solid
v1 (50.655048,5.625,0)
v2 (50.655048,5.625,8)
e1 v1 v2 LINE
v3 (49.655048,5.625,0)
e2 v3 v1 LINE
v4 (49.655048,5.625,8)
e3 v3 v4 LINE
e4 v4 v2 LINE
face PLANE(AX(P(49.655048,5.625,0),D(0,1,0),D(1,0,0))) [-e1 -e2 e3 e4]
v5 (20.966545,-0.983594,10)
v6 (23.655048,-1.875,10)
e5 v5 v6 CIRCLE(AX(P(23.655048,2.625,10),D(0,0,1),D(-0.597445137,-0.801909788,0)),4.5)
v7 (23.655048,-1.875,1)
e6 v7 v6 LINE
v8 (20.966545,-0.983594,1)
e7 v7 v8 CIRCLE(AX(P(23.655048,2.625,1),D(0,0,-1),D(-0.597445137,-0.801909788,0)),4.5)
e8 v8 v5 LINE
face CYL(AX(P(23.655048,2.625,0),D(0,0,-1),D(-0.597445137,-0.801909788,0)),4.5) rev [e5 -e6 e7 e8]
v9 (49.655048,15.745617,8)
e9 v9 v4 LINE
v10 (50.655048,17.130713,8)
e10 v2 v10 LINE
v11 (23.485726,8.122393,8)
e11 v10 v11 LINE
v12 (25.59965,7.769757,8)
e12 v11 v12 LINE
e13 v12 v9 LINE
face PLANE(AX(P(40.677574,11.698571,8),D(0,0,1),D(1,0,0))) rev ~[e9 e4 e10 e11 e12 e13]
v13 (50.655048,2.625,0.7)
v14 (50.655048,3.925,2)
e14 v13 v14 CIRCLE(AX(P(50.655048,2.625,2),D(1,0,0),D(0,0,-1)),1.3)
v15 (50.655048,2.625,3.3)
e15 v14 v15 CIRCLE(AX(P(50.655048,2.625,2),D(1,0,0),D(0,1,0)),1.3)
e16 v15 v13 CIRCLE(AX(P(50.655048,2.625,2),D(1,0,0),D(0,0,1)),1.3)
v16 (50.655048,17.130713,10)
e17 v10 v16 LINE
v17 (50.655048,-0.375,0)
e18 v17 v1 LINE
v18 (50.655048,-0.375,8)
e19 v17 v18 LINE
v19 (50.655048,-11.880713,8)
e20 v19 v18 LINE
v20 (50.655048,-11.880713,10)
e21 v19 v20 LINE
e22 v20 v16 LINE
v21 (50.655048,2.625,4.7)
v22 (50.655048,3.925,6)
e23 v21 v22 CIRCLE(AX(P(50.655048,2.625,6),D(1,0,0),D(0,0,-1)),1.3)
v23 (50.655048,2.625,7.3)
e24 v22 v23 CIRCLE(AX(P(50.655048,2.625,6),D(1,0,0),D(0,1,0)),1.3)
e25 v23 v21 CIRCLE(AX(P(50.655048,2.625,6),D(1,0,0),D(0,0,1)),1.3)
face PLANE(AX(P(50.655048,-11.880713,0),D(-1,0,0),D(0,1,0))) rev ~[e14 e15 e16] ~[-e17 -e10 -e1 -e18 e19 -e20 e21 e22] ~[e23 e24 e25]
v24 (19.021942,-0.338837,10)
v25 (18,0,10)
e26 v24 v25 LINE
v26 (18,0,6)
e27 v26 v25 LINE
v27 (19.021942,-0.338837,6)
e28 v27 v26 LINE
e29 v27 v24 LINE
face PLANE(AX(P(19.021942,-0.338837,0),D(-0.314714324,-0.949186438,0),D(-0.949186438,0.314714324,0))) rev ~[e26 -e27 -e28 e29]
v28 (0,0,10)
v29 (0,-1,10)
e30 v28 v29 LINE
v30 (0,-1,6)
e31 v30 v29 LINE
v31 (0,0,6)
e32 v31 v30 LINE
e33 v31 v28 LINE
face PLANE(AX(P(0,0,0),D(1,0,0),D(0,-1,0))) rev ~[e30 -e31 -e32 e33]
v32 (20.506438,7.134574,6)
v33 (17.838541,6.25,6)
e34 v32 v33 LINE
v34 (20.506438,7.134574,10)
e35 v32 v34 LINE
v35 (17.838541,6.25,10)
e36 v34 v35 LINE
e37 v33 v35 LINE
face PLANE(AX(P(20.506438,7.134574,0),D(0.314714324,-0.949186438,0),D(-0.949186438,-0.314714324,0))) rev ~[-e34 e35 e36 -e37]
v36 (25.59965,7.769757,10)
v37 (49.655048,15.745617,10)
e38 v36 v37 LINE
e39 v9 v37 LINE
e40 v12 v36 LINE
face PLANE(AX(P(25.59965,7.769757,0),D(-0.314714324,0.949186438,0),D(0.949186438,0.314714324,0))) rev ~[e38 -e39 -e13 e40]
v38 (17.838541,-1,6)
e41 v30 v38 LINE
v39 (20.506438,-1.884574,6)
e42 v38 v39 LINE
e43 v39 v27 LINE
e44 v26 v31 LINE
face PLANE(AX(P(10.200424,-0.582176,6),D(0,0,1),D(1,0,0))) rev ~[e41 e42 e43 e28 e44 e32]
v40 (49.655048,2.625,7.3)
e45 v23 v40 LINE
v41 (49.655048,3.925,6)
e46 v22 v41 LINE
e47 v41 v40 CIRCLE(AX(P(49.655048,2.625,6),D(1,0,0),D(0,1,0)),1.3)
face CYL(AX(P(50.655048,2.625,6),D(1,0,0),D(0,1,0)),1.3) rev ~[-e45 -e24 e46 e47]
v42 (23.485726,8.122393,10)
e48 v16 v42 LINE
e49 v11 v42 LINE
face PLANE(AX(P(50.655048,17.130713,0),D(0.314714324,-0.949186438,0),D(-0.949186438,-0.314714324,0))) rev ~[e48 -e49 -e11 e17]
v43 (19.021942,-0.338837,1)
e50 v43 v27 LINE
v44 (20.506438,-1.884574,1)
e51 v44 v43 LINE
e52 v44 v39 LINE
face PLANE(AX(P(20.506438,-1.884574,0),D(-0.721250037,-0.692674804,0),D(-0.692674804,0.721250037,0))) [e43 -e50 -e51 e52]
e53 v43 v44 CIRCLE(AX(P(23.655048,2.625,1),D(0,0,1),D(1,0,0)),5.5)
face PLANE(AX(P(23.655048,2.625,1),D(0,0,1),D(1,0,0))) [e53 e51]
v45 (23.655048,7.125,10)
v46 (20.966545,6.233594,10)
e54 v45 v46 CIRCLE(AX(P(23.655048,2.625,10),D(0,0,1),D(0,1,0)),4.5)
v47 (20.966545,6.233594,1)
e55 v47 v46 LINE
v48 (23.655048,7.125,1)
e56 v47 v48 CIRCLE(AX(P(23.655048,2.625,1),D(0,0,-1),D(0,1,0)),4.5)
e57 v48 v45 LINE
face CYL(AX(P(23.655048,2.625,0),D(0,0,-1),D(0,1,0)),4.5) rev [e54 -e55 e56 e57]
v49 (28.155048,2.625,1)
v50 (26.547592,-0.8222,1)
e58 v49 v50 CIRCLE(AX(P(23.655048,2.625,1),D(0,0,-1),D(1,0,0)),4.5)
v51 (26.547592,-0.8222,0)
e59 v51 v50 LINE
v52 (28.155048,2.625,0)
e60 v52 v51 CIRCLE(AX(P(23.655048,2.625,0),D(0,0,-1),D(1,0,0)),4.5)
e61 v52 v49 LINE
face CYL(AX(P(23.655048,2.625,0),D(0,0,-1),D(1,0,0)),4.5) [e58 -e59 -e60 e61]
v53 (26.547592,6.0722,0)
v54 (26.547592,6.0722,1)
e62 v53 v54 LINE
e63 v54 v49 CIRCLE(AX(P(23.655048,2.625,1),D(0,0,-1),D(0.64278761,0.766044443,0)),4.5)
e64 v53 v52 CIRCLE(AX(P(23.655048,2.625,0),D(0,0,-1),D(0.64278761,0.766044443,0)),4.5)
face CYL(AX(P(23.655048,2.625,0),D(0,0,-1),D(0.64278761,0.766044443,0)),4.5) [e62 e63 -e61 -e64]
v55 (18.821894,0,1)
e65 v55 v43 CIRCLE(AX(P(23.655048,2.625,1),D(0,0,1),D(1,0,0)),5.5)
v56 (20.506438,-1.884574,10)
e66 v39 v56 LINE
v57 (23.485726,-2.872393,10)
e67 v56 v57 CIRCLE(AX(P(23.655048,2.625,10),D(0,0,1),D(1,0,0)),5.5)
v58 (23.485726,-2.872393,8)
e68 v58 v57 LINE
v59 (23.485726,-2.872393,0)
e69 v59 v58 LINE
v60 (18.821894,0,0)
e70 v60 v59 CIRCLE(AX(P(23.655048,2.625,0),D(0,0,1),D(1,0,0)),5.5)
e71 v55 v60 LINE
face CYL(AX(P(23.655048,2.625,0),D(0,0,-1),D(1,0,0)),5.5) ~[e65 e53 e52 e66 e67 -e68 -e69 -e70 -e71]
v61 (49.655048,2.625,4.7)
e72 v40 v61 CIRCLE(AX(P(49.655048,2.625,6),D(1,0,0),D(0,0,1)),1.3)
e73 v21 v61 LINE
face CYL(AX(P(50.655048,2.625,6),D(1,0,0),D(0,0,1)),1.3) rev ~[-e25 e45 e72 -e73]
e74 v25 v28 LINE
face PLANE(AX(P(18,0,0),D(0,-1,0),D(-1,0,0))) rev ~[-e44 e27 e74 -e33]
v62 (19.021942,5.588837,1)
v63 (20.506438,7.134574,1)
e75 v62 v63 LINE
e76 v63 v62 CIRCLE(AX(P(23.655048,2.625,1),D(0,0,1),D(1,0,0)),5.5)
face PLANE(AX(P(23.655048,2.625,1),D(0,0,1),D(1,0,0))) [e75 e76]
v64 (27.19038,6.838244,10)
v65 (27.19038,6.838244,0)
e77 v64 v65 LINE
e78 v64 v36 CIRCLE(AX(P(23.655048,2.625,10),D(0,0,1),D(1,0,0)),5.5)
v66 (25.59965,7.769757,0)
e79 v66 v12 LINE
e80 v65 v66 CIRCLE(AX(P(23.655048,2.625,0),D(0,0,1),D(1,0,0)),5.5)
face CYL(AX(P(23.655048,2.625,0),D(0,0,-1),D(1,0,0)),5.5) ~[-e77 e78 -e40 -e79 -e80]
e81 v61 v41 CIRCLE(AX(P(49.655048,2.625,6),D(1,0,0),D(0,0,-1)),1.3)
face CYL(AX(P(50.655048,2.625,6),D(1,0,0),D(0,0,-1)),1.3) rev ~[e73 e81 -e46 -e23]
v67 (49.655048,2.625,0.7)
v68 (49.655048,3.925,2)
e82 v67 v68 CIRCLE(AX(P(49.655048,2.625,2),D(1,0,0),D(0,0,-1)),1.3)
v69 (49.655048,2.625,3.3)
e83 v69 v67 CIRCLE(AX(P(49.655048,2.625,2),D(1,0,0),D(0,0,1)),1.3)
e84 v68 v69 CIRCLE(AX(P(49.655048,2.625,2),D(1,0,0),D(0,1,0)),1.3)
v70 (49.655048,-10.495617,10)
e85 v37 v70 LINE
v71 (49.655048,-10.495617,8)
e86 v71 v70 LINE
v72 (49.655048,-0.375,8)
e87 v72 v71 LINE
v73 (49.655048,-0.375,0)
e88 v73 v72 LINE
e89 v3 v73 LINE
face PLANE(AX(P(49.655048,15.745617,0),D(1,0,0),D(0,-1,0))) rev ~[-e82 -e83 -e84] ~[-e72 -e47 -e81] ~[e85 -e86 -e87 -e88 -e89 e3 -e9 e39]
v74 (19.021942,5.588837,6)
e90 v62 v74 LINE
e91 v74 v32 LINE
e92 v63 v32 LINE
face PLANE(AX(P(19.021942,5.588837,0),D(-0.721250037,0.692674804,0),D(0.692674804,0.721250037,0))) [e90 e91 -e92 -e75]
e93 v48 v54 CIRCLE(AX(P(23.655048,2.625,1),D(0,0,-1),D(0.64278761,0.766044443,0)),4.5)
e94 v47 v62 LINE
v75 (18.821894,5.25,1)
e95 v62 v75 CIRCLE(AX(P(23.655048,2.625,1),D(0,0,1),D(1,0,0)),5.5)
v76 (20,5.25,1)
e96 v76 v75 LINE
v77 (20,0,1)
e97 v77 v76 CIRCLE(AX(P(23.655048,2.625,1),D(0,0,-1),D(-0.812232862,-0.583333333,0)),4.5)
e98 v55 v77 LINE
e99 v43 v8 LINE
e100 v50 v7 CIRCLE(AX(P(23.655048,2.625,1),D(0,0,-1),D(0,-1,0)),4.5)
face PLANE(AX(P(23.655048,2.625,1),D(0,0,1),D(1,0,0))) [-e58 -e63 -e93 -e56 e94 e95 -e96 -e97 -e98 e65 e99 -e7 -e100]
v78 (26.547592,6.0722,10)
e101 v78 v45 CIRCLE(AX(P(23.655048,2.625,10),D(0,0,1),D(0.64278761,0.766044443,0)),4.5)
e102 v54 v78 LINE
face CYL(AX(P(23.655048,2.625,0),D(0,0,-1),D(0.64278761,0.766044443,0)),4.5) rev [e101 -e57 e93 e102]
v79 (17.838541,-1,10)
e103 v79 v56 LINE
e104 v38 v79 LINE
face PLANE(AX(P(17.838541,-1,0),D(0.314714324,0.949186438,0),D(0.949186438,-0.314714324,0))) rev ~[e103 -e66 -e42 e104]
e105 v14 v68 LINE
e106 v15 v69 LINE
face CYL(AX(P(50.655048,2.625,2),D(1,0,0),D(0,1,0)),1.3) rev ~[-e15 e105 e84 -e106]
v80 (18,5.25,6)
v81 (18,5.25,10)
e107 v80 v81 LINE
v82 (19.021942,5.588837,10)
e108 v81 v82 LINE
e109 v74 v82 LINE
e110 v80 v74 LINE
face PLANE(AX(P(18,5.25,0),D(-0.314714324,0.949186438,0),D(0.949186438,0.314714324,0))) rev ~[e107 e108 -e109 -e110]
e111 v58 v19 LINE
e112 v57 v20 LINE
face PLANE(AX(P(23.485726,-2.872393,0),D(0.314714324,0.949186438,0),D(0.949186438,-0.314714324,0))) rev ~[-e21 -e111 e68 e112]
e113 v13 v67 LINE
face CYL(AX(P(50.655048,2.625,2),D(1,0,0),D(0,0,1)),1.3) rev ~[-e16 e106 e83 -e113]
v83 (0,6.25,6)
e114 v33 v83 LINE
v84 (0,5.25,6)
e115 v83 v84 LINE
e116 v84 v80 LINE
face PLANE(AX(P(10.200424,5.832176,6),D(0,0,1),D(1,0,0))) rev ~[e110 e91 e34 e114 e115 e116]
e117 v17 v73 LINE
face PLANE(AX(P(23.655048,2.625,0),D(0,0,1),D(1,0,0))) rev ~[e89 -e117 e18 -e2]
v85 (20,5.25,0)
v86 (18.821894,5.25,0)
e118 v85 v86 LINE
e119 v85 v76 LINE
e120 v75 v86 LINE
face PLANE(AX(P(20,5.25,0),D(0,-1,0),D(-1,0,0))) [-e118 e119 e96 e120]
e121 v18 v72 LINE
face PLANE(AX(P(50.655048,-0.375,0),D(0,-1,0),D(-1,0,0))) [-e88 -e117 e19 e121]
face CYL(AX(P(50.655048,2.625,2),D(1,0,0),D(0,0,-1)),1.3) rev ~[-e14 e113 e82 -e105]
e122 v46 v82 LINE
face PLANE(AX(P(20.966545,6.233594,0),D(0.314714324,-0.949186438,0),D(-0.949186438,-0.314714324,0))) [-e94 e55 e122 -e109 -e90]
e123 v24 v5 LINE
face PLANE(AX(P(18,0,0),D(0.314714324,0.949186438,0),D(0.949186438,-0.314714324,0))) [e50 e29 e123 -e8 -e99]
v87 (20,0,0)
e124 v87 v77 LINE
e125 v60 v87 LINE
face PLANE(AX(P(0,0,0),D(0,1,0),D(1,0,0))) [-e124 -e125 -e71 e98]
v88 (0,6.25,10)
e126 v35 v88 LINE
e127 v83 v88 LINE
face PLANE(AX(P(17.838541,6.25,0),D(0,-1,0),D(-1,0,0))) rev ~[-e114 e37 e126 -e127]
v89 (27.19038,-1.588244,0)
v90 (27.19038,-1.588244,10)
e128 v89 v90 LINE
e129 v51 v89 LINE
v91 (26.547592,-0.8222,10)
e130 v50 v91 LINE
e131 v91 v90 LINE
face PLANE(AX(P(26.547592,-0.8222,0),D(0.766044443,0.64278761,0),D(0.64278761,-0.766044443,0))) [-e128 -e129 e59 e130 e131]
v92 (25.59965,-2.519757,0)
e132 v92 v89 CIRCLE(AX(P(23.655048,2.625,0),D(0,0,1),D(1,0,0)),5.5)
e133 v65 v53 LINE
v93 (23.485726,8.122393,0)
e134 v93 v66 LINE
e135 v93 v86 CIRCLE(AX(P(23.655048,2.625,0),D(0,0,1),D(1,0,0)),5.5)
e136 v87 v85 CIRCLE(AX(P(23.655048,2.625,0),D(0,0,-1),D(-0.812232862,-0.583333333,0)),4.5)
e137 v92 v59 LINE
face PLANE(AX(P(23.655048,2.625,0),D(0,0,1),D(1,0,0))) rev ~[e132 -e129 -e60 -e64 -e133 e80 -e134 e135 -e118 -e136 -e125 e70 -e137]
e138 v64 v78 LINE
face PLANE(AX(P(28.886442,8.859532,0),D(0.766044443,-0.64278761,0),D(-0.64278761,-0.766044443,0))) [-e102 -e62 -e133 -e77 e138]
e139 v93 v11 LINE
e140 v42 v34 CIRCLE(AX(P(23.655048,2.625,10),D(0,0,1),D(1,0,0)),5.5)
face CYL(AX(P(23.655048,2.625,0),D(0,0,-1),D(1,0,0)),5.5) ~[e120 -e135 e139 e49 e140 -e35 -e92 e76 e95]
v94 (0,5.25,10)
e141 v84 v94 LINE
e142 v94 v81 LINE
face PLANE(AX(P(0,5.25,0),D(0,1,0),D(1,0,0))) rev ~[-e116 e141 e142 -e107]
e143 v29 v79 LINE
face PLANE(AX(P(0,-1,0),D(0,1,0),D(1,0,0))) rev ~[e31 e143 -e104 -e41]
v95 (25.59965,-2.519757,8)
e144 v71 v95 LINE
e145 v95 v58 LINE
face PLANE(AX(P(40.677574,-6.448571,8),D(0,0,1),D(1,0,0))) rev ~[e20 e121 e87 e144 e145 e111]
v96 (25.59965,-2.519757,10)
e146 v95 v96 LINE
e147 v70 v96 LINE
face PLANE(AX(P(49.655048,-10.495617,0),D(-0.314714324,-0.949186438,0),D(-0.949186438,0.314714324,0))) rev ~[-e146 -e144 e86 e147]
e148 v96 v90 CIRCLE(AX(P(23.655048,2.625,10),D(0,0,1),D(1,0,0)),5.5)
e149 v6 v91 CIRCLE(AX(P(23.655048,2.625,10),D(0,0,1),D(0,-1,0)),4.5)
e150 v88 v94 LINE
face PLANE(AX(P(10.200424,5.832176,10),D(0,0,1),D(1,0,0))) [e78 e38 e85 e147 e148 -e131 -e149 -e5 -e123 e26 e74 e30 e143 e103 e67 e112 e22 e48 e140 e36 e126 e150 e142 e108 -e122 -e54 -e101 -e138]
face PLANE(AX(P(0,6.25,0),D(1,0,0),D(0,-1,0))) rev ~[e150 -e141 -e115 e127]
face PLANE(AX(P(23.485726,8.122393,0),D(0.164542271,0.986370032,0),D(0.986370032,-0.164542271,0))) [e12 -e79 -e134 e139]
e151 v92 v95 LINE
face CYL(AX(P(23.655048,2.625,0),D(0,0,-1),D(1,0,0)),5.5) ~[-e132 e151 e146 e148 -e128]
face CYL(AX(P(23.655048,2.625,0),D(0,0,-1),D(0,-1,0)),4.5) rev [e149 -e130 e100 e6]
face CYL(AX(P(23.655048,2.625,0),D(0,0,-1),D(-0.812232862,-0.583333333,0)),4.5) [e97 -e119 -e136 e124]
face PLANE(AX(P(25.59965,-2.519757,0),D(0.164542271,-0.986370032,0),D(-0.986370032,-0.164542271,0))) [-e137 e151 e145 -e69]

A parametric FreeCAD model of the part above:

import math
import FreeCAD as App
import Part
import Sketcher
Q = App.Units.Quantity

doc = App.newDocument("Part")
body = doc.addObject("PartDesign::Body", "Body")
body.AllowCompound = True

sketch1 = doc.addObject("Sketcher::SketchObject", "Sketch")
body.addObject(sketch1)
sketch1.AttachmentSupport = (doc.XY_Plane, [""])
sketch1.MapMode = "FlatFace"
sketch1.addGeometry(Part.Circle(App.Vector(24, 3, 0), App.Vector(0, 0, 1), 6), False)
sketch1.addConstraint(Sketcher.Constraint("Diameter", 0, Q("11 mm")))
sketch1.addConstraint(Sketcher.Constraint("DistanceY", -1, 1, 0, 3, Q("2.625 mm")))
sketch1.addConstraint(Sketcher.Constraint("DistanceX", -1, 1, 0, 3, Q("23.655048 mm")))
pad1 = doc.addObject("PartDesign::Pad", "Pad")
body.addObject(pad1)
pad1.Profile = sketch1
pad1.Length = 10

sketch2 = doc.addObject("Sketcher::SketchObject", "Sketch001")
body.addObject(sketch2)
sketch2.AttachmentSupport = (doc.XY_Plane, [""])
sketch2.MapMode = "FlatFace"
sketch2.addGeometry(Part.ArcOfCircle(Part.Circle(App.Vector(23.7, 2.6, 0), App.Vector(0, 0, 1), 4.5), math.radians(-90), math.radians(-50)), False)
sketch2.addGeometry(Part.LineSegment(App.Vector(26.5, -0.8, 0), App.Vector(28.9, -3.6, 0)), False)
sketch2.addGeometry(Part.LineSegment(App.Vector(28.9, -3.6, 0), App.Vector(49.7, -10.5, 0)), False)
sketch2.addGeometry(Part.LineSegment(App.Vector(49.7, -10.5, 0), App.Vector(49.7, 15.7, 0)), False)
sketch2.addGeometry(Part.LineSegment(App.Vector(49.7, 15.7, 0), App.Vector(28.9, 8.9, 0)), False)
sketch2.addGeometry(Part.LineSegment(App.Vector(28.9, 8.9, 0), App.Vector(26.5, 6.1, 0)), False)
sketch2.addGeometry(Part.ArcOfCircle(Part.Circle(App.Vector(23.7, 2.6, 0), App.Vector(0, 0, 1), 4.5), math.radians(50), math.radians(90)), False)
sketch2.addGeometry(Part.ArcOfCircle(Part.Circle(App.Vector(23.7, 2.6, 0), App.Vector(0, 0, 1), 4.5), math.radians(90), math.radians(127)), False)
sketch2.addGeometry(Part.ArcOfCircle(Part.Circle(App.Vector(23.7, 2.6, 0), App.Vector(0, 0, 1), 4.5), math.radians(126.69), math.radians(144.31)), False)
sketch2.addGeometry(Part.ArcOfCircle(Part.Circle(App.Vector(23.7, 2.6, 0), App.Vector(0, 0, 1), 4.5), math.radians(144), math.radians(216)), False)
sketch2.addGeometry(Part.ArcOfCircle(Part.Circle(App.Vector(23.7, 2.6, 0), App.Vector(0, 0, 1), 4.5), math.radians(-144.31), math.radians(-126.69)), False)
sketch2.addGeometry(Part.ArcOfCircle(Part.Circle(App.Vector(23.7, 2.6, 0), App.Vector(0, 0, 1), 4.5), math.radians(-127), math.radians(-90)), False)
sketch2.addConstraint(Sketcher.Constraint("Coincident", 0, 2, 1, 1))
sketch2.addConstraint(Sketcher.Constraint("Coincident", 1, 2, 2, 1))
sketch2.addConstraint(Sketcher.Constraint("Coincident", 2, 2, 3, 1))
sketch2.addConstraint(Sketcher.Constraint("Coincident", 3, 2, 4, 1))
sketch2.addConstraint(Sketcher.Constraint("Coincident", 4, 2, 5, 1))
sketch2.addConstraint(Sketcher.Constraint("Coincident", 5, 2, 6, 1))
sketch2.addConstraint(Sketcher.Constraint("Tangent", 6, 2, 7, 1))
sketch2.addConstraint(Sketcher.Constraint("Tangent", 7, 2, 8, 1))
sketch2.addConstraint(Sketcher.Constraint("Tangent", 8, 2, 9, 1))
sketch2.addConstraint(Sketcher.Constraint("Tangent", 9, 2, 10, 1))
sketch2.addConstraint(Sketcher.Constraint("Tangent", 10, 2, 11, 1))
sketch2.addConstraint(Sketcher.Constraint("Tangent", 11, 2, 0, 1))
sketch2.addConstraint(Sketcher.Constraint("Vertical", 3))
sketch2.addConstraint(Sketcher.Constraint("Coincident", 6, 3, 0, 3))
sketch2.addConstraint(Sketcher.Constraint("Coincident", 8, 3, 0, 3))
sketch2.addConstraint(Sketcher.Constraint("Coincident", 10, 3, 0, 3))
sketch2.addConstraint(Sketcher.Constraint("PointOnObject", 9, 2, -1))
sketch2.addConstraint(Sketcher.Constraint("Vertical", 1, 2, 4, 2))
sketch2.addConstraint(Sketcher.Constraint("Vertical", 0, 2, 5, 2))
sketch2.addConstraint(Sketcher.Constraint("Vertical", 11, 3, 6, 2))
sketch2.addConstraint(Sketcher.Constraint("Vertical", 8, 2, 9, 2))
sketch2.addConstraint(Sketcher.Constraint("Vertical", 7, 2, 10, 2))
sketch2.addConstraint(Sketcher.Constraint("Vertical", 6, 2, 11, 2))
sketch2.addConstraint(Sketcher.Constraint("Equal", 2, 4))
sketch2.addConstraint(Sketcher.Constraint("Equal", 1, 5))
sketch2.addConstraint(Sketcher.Constraint("Radius", 0, Q("4.5 mm")))
sketch2.addConstraint(Sketcher.Constraint("Angle", 1, Q("-50 deg")))
sketch2.addConstraint(Sketcher.Constraint("DistanceX", -1, 1, 8, 2, Q("20 mm")))
sketch2.addConstraint(Sketcher.Constraint("DistanceX", 0, 3, 2, 2, Q("26 mm")))
sketch2.addConstraint(Sketcher.Constraint("DistanceY", -1, 1, 8, 2, Q("5.25 mm")))
sketch2.addConstraint(Sketcher.Constraint("DistanceY", 0, 2, -1, 1, Q("0.8222 mm")))
sketch2.addConstraint(Sketcher.Constraint("Distance", 2, Q("21.880429 mm")))
sketch2.addConstraint(Sketcher.Constraint("DistanceY", 3, 1, 3, 2, Q("26.241233 mm")))
sketch2.addConstraint(Sketcher.Constraint("DistanceX", -1, 1, 7, 2, Q("20.966545 mm")))
pocket1 = doc.addObject("PartDesign::Pocket", "Pocket")
body.addObject(pocket1)
pocket1.Profile = sketch2
pocket1.Length = 10
pocket1.Reversed = True

sketch3 = doc.addObject("Sketcher::SketchObject", "Sketch002")
body.addObject(sketch3)
sketch3.AttachmentSupport = (doc.XY_Plane, [""])
sketch3.MapMode = "FlatFace"
sketch3.addGeometry(Part.LineSegment(App.Vector(0, 5.2, 0), App.Vector(18, 5.2, 0)), False)
sketch3.addGeometry(Part.LineSegment(App.Vector(18, 5.2, 0), App.Vector(19, 5.6, 0)), False)
sketch3.addGeometry(Part.LineSegment(App.Vector(19, 5.6, 0), App.Vector(20.5, 7.1, 0)), False)
sketch3.addGeometry(Part.LineSegment(App.Vector(20.5, 7.1, 0), App.Vector(17.8, 6.2, 0)), False)
sketch3.addGeometry(Part.LineSegment(App.Vector(17.8, 6.2, 0), App.Vector(0, 6.2, 0)), False)
sketch3.addGeometry(Part.LineSegment(App.Vector(0, 6.2, 0), App.Vector(0, 5.2, 0)), False)
sketch3.addGeometry(Part.LineSegment(App.Vector(19, -0.3, 0), App.Vector(18, 0, 0)), False)
sketch3.addGeometry(Part.LineSegment(App.Vector(18, 0, 0), App.Vector(0, 0, 0)), False)
sketch3.addGeometry(Part.LineSegment(App.Vector(0, 0, 0), App.Vector(0, -1, 0)), False)
sketch3.addGeometry(Part.LineSegment(App.Vector(0, -1, 0), App.Vector(17.8, -1, 0)), False)
sketch3.addGeometry(Part.LineSegment(App.Vector(17.8, -1, 0), App.Vector(20.5, -1.9, 0)), False)
sketch3.addGeometry(Part.LineSegment(App.Vector(20.5, -1.9, 0), App.Vector(19, -0.3, 0)), False)
sketch3.addConstraint(Sketcher.Constraint("Coincident", 0, 2, 1, 1))
sketch3.addConstraint(Sketcher.Constraint("Coincident", 1, 2, 2, 1))
sketch3.addConstraint(Sketcher.Constraint("Coincident", 2, 2, 3, 1))
sketch3.addConstraint(Sketcher.Constraint("Coincident", 3, 2, 4, 1))
sketch3.addConstraint(Sketcher.Constraint("Coincident", 4, 2, 5, 1))
sketch3.addConstraint(Sketcher.Constraint("Coincident", 5, 2, 0, 1))
sketch3.addConstraint(Sketcher.Constraint("Coincident", 6, 2, 7, 1))
sketch3.addConstraint(Sketcher.Constraint("Coincident", 7, 2, 8, 1))
sketch3.addConstraint(Sketcher.Constraint("Coincident", 8, 2, 9, 1))
sketch3.addConstraint(Sketcher.Constraint("Coincident", 9, 2, 10, 1))
sketch3.addConstraint(Sketcher.Constraint("Coincident", 10, 2, 11, 1))
sketch3.addConstraint(Sketcher.Constraint("Coincident", 11, 2, 6, 1))
sketch3.addConstraint(Sketcher.Constraint("Horizontal", 0))
sketch3.addConstraint(Sketcher.Constraint("Horizontal", 4))
sketch3.addConstraint(Sketcher.Constraint("Vertical", 5))
sketch3.addConstraint(Sketcher.Constraint("Horizontal", 7))
sketch3.addConstraint(Sketcher.Constraint("Vertical", 8))
sketch3.addConstraint(Sketcher.Constraint("Horizontal", 9))
sketch3.addConstraint(Sketcher.Constraint("Coincident", 7, 2, -1, 1))
sketch3.addConstraint(Sketcher.Constraint("PointOnObject", 4, 2, -2))
sketch3.addConstraint(Sketcher.Constraint("Parallel", 1, 3))
sketch3.addConstraint(Sketcher.Constraint("Parallel", 6, 10))
sketch3.addConstraint(Sketcher.Constraint("Vertical", 0, 2, 6, 2))
sketch3.addConstraint(Sketcher.Constraint("Vertical", 3, 2, 9, 2))
sketch3.addConstraint(Sketcher.Constraint("Vertical", 2, 2, 10, 2))
sketch3.addConstraint(Sketcher.Constraint("Vertical", 1, 2, 11, 2))
sketch3.addConstraint(Sketcher.Constraint("Equal", 5, 8))
sketch3.addConstraint(Sketcher.Constraint("Equal", 1, 6))
sketch3.addConstraint(Sketcher.Constraint("DistanceX", 0, 1, 0, 2, Q("18 mm")))
sketch3.addConstraint(Sketcher.Constraint("DistanceY", 5, 2, 5, 1, Q("1 mm")))
sketch3.addConstraint(Sketcher.Constraint("DistanceY", -1, 1, 0, 2, Q("5.25 mm")))
sketch3.addConstraint(Sketcher.Constraint("DistanceX", 4, 2, 4, 1, Q("17.838541 mm")))
sketch3.addConstraint(Sketcher.Constraint("DistanceX", 3, 2, 1, 2, Q("1.183402 mm")))
sketch3.addConstraint(Sketcher.Constraint("Distance", 1, Q("1.076651 mm")))
sketch3.addConstraint(Sketcher.Constraint("Distance", 3, Q("2.81072 mm")))
pad2 = doc.addObject("PartDesign::Pad", "Pad001")
body.addObject(pad2)
pad2.Profile = sketch3
pad2.Length = 10

sketch4 = doc.addObject("Sketcher::SketchObject", "Sketch003")
body.addObject(sketch4)
sketch4.AttachmentSupport = (doc.XY_Plane, [""])
sketch4.MapMode = "FlatFace"
sketch4.addGeometry(Part.LineSegment(App.Vector(0, 5.2, 0), App.Vector(18, 5.2, 0)), False)
sketch4.addGeometry(Part.LineSegment(App.Vector(18, 5.2, 0), App.Vector(19, 5.6, 0)), False)
sketch4.addGeometry(Part.LineSegment(App.Vector(19, 5.6, 0), App.Vector(20.5, 7.1, 0)), False)
sketch4.addGeometry(Part.LineSegment(App.Vector(20.5, 7.1, 0), App.Vector(17.8, 6.2, 0)), False)
sketch4.addGeometry(Part.LineSegment(App.Vector(17.8, 6.2, 0), App.Vector(0, 6.2, 0)), False)
sketch4.addGeometry(Part.LineSegment(App.Vector(0, 6.2, 0), App.Vector(0, 5.2, 0)), False)
sketch4.addGeometry(Part.LineSegment(App.Vector(19, -0.3, 0), App.Vector(18, 0, 0)), False)
sketch4.addGeometry(Part.LineSegment(App.Vector(18, 0, 0), App.Vector(0, 0, 0)), False)
sketch4.addGeometry(Part.LineSegment(App.Vector(0, 0, 0), App.Vector(0, -1, 0)), False)
sketch4.addGeometry(Part.LineSegment(App.Vector(0, -1, 0), App.Vector(17.8, -1, 0)), False)
sketch4.addGeometry(Part.LineSegment(App.Vector(17.8, -1, 0), App.Vector(20.5, -1.9, 0)), False)
sketch4.addGeometry(Part.LineSegment(App.Vector(20.5, -1.9, 0), App.Vector(19, -0.3, 0)), False)
sketch4.addConstraint(Sketcher.Constraint("Coincident", 0, 2, 1, 1))
sketch4.addConstraint(Sketcher.Constraint("Coincident", 1, 2, 2, 1))
sketch4.addConstraint(Sketcher.Constraint("Coincident", 2, 2, 3, 1))
sketch4.addConstraint(Sketcher.Constraint("Coincident", 3, 2, 4, 1))
sketch4.addConstraint(Sketcher.Constraint("Coincident", 4, 2, 5, 1))
sketch4.addConstraint(Sketcher.Constraint("Coincident", 5, 2, 0, 1))
sketch4.addConstraint(Sketcher.Constraint("Coincident", 6, 2, 7, 1))
sketch4.addConstraint(Sketcher.Constraint("Coincident", 7, 2, 8, 1))
sketch4.addConstraint(Sketcher.Constraint("Coincident", 8, 2, 9, 1))
sketch4.addConstraint(Sketcher.Constraint("Coincident", 9, 2, 10, 1))
sketch4.addConstraint(Sketcher.Constraint("Coincident", 10, 2, 11, 1))
sketch4.addConstraint(Sketcher.Constraint("Coincident", 11, 2, 6, 1))
sketch4.addConstraint(Sketcher.Constraint("Horizontal", 0))
sketch4.addConstraint(Sketcher.Constraint("Horizontal", 4))
sketch4.addConstraint(Sketcher.Constraint("Vertical", 5))
sketch4.addConstraint(Sketcher.Constraint("Horizontal", 7))
sketch4.addConstraint(Sketcher.Constraint("Vertical", 8))
sketch4.addConstraint(Sketcher.Constraint("Horizontal", 9))
sketch4.addConstraint(Sketcher.Constraint("Coincident", 7, 2, -1, 1))
sketch4.addConstraint(Sketcher.Constraint("PointOnObject", 4, 2, -2))
sketch4.addConstraint(Sketcher.Constraint("Parallel", 1, 3))
sketch4.addConstraint(Sketcher.Constraint("Parallel", 6, 10))
sketch4.addConstraint(Sketcher.Constraint("Vertical", 0, 2, 6, 2))
sketch4.addConstraint(Sketcher.Constraint("Vertical", 3, 2, 9, 2))
sketch4.addConstraint(Sketcher.Constraint("Vertical", 2, 2, 10, 2))
sketch4.addConstraint(Sketcher.Constraint("Vertical", 1, 2, 11, 2))
sketch4.addConstraint(Sketcher.Constraint("Equal", 5, 8))
sketch4.addConstraint(Sketcher.Constraint("Equal", 1, 6))
sketch4.addConstraint(Sketcher.Constraint("DistanceX", 0, 1, 0, 2, Q("18 mm")))
sketch4.addConstraint(Sketcher.Constraint("DistanceY", 5, 2, 5, 1, Q("1 mm")))
sketch4.addConstraint(Sketcher.Constraint("DistanceY", -1, 1, 0, 2, Q("5.25 mm")))
sketch4.addConstraint(Sketcher.Constraint("DistanceX", 4, 2, 4, 1, Q("17.838541 mm")))
sketch4.addConstraint(Sketcher.Constraint("DistanceX", 3, 2, 1, 2, Q("1.183402 mm")))
sketch4.addConstraint(Sketcher.Constraint("Distance", 1, Q("1.076651 mm")))
sketch4.addConstraint(Sketcher.Constraint("Distance", 3, Q("2.81072 mm")))
pocket2 = doc.addObject("PartDesign::Pocket", "Pocket001")
body.addObject(pocket2)
pocket2.Profile = sketch4
pocket2.Length = 6
pocket2.Reversed = True

sketch5 = doc.addObject("Sketcher::SketchObject", "Sketch004")
body.addObject(sketch5)
sketch5.AttachmentSupport = (doc.XY_Plane, [""])
sketch5.MapMode = "FlatFace"
sketch5.addGeometry(Part.LineSegment(App.Vector(0, 5.2, 0), App.Vector(0, 0, 0)), False)
sketch5.addGeometry(Part.LineSegment(App.Vector(0, 0, 0), App.Vector(18, 0, 0)), False)
sketch5.addGeometry(Part.LineSegment(App.Vector(18, 0, 0), App.Vector(21, -1, 0)), False)
sketch5.addGeometry(Part.ArcOfCircle(Part.Circle(App.Vector(23.7, 2.6, 0), App.Vector(0, 0, 1), 4.5), math.radians(-144.31), math.radians(-126.69)), False)
sketch5.addGeometry(Part.ArcOfCircle(Part.Circle(App.Vector(23.7, 2.6, 0), App.Vector(0, 0, 1), 4.5), math.radians(144), math.radians(216)), False)
sketch5.addGeometry(Part.ArcOfCircle(Part.Circle(App.Vector(23.7, 2.6, 0), App.Vector(0, 0, 1), 4.5), math.radians(126.69), math.radians(144.31)), False)
sketch5.addGeometry(Part.LineSegment(App.Vector(21, 6.2, 0), App.Vector(18, 5.2, 0)), False)
sketch5.addGeometry(Part.LineSegment(App.Vector(18, 5.2, 0), App.Vector(0, 5.2, 0)), False)
sketch5.addConstraint(Sketcher.Constraint("Coincident", 0, 2, 1, 1))
sketch5.addConstraint(Sketcher.Constraint("Coincident", 1, 2, 2, 1))
sketch5.addConstraint(Sketcher.Constraint("Coincident", 2, 2, 3, 2))
sketch5.addConstraint(Sketcher.Constraint("Tangent", 3, 1, 4, 2))
sketch5.addConstraint(Sketcher.Constraint("Tangent", 4, 1, 5, 2))
sketch5.addConstraint(Sketcher.Constraint("Coincident", 5, 1, 6, 1))
sketch5.addConstraint(Sketcher.Constraint("Coincident", 6, 2, 7, 1))
sketch5.addConstraint(Sketcher.Constraint("Coincident", 7, 2, 0, 1))
sketch5.addConstraint(Sketcher.Constraint("Vertical", 0))
sketch5.addConstraint(Sketcher.Constraint("Horizontal", 1))
sketch5.addConstraint(Sketcher.Constraint("Horizontal", 7))
sketch5.addConstraint(Sketcher.Constraint("Coincident", 0, 2, -1, 1))
sketch5.addConstraint(Sketcher.Constraint("Coincident", 5, 3, 3, 3))
sketch5.addConstraint(Sketcher.Constraint("PointOnObject", 3, 1, -1))
sketch5.addConstraint(Sketcher.Constraint("Horizontal", 4, 1, 6, 2))
sketch5.addConstraint(Sketcher.Constraint("Vertical", 3, 1, 4, 1))
sketch5.addConstraint(Sketcher.Constraint("Vertical", 2, 2, 5, 1))
sketch5.addConstraint(Sketcher.Constraint("Vertical", 1, 2, 6, 2))
sketch5.addConstraint(Sketcher.Constraint("Radius", 3, Q("4.5 mm")))
sketch5.addConstraint(Sketcher.Constraint("DistanceX", 1, 1, 1, 2, Q("18 mm")))
sketch5.addConstraint(Sketcher.Constraint("DistanceX", -1, 1, 3, 1, Q("20 mm")))
sketch5.addConstraint(Sketcher.Constraint("DistanceY", 0, 2, 0, 1, Q("5.25 mm")))
sketch5.addConstraint(Sketcher.Constraint("Distance", 2, Q("3.125355 mm")))
pocket3 = doc.addObject("PartDesign::Pocket", "Pocket002")
body.addObject(pocket3)
pocket3.Profile = sketch5
pocket3.Length = 10
pocket3.Reversed = True

sketch6 = doc.addObject("Sketcher::SketchObject", "Sketch005")
body.addObject(sketch6)
sketch6.AttachmentSupport = (doc.XY_Plane, [""])
sketch6.MapMode = "FlatFace"
sketch6.addGeometry(Part.Circle(App.Vector(24, 3, 0), App.Vector(0, 0, 1), 6), False)
sketch6.addConstraint(Sketcher.Constraint("Diameter", 0, Q("11 mm")))
sketch6.addConstraint(Sketcher.Constraint("DistanceY", -1, 1, 0, 3, Q("2.625 mm")))
sketch6.addConstraint(Sketcher.Constraint("DistanceX", -1, 1, 0, 3, Q("23.655048 mm")))
pad3 = doc.addObject("PartDesign::Pad", "Pad002")
body.addObject(pad3)
pad3.Profile = sketch6
pad3.Length = 1

sketch7 = doc.addObject("Sketcher::SketchObject", "Sketch006")
body.addObject(sketch7)
sketch7.AttachmentSupport = (doc.XY_Plane, [""])
sketch7.MapMode = "FlatFace"
sketch7.addGeometry(Part.LineSegment(App.Vector(0, 5.2, 0), App.Vector(0, 0, 0)), False)
sketch7.addGeometry(Part.LineSegment(App.Vector(0, 0, 0), App.Vector(20, 0, 0)), False)
sketch7.addGeometry(Part.ArcOfCircle(Part.Circle(App.Vector(23.7, 2.6, 0), App.Vector(0, 0, 1), 4.5), math.radians(144), math.radians(216)), False)
sketch7.addGeometry(Part.LineSegment(App.Vector(20, 5.2, 0), App.Vector(0, 5.2, 0)), False)
sketch7.addGeometry(Part.ArcOfCircle(Part.Circle(App.Vector(23.7, 2.6, 0), App.Vector(0, 0, 1), 4.5), math.radians(-50), math.radians(0)), False)
sketch7.addGeometry(Part.LineSegment(App.Vector(26.5, -0.8, 0), App.Vector(28.9, -3.6, 0)), False)
sketch7.addGeometry(Part.LineSegment(App.Vector(28.9, -3.6, 0), App.Vector(49.7, -10.5, 0)), False)
sketch7.addGeometry(Part.LineSegment(App.Vector(49.7, -10.5, 0), App.Vector(49.7, 15.7, 0)), False)
sketch7.addGeometry(Part.LineSegment(App.Vector(49.7, 15.7, 0), App.Vector(28.9, 8.9, 0)), False)
sketch7.addGeometry(Part.LineSegment(App.Vector(28.9, 8.9, 0), App.Vector(26.5, 6.1, 0)), False)
sketch7.addGeometry(Part.ArcOfCircle(Part.Circle(App.Vector(23.7, 2.6, 0), App.Vector(0, 0, 1), 4.5), math.radians(0), math.radians(50)), False)
sketch7.addConstraint(Sketcher.Constraint("Coincident", 0, 2, 1, 1))
sketch7.addConstraint(Sketcher.Constraint("Coincident", 1, 2, 2, 2))
sketch7.addConstraint(Sketcher.Constraint("Coincident", 2, 1, 3, 1))
sketch7.addConstraint(Sketcher.Constraint("Coincident", 3, 2, 0, 1))
sketch7.addConstraint(Sketcher.Constraint("Coincident", 4, 1, 5, 1))
sketch7.addConstraint(Sketcher.Constraint("Coincident", 5, 2, 6, 1))
sketch7.addConstraint(Sketcher.Constraint("Coincident", 6, 2, 7, 1))
sketch7.addConstraint(Sketcher.Constraint("Coincident", 7, 2, 8, 1))
sketch7.addConstraint(Sketcher.Constraint("Coincident", 8, 2, 9, 1))
sketch7.addConstraint(Sketcher.Constraint("Coincident", 9, 2, 10, 2))
sketch7.addConstraint(Sketcher.Constraint("Tangent", 10, 1, 4, 2))
sketch7.addConstraint(Sketcher.Constraint("Vertical", 0))
sketch7.addConstraint(Sketcher.Constraint("Horizontal", 1))
sketch7.addConstraint(Sketcher.Constraint("Horizontal", 3))
sketch7.addConstraint(Sketcher.Constraint("Vertical", 7))
sketch7.addConstraint(Sketcher.Constraint("Coincident", 0, 2, -1, 1))
sketch7.addConstraint(Sketcher.Constraint("Coincident", 4, 3, 2, 3))
sketch7.addConstraint(Sketcher.Constraint("Equal", 2, 4))
sketch7.addConstraint(Sketcher.Constraint("Equal", 4, 10))
sketch7.addConstraint(Sketcher.Constraint("Horizontal", 4, 3, 10, 1))
sketch7.addConstraint(Sketcher.Constraint("Vertical", 1, 2, 2, 1))
sketch7.addConstraint(Sketcher.Constraint("Vertical", 5, 2, 8, 2))
sketch7.addConstraint(Sketcher.Constraint("Vertical", 4, 1, 9, 2))
sketch7.addConstraint(Sketcher.Constraint("Equal", 6, 8))
sketch7.addConstraint(Sketcher.Constraint("Equal", 5, 9))
sketch7.addConstraint(Sketcher.Constraint("Radius", 2, Q("4.5 mm")))
sketch7.addConstraint(Sketcher.Constraint("DistanceX", 1, 1, 1, 2, Q("20 mm")))
sketch7.addConstraint(Sketcher.Constraint("Angle", 5, Q("-50 deg")))
sketch7.addConstraint(Sketcher.Constraint("DistanceX", 4, 3, 6, 2, Q("26 mm")))
sketch7.addConstraint(Sketcher.Constraint("DistanceY", 0, 2, 0, 1, Q("5.25 mm")))
sketch7.addConstraint(Sketcher.Constraint("DistanceY", 4, 1, -1, 1, Q("0.8222 mm")))
sketch7.addConstraint(Sketcher.Constraint("Distance", 6, Q("21.880429 mm")))
sketch7.addConstraint(Sketcher.Constraint("DistanceY", 7, 1, 7, 2, Q("26.241233 mm")))
pocket4 = doc.addObject("PartDesign::Pocket", "Pocket003")
body.addObject(pocket4)
pocket4.Profile = sketch7
pocket4.Length = 1
pocket4.Reversed = True

sketch8 = doc.addObject("Sketcher::SketchObject", "Sketch007")
body.addObject(sketch8)
sketch8.AttachmentSupport = (doc.XY_Plane, [""])
sketch8.MapMode = "FlatFace"
sketch8.addGeometry(Part.LineSegment(App.Vector(23.5, 8.1, 0), App.Vector(25.6, 7.8, 0)), False)
sketch8.addGeometry(Part.LineSegment(App.Vector(25.6, 7.8, 0), App.Vector(49.7, 15.7, 0)), False)
sketch8.addGeometry(Part.LineSegment(App.Vector(49.7, 15.7, 0), App.Vector(49.7, -10.5, 0)), False)
sketch8.addGeometry(Part.LineSegment(App.Vector(49.7, -10.5, 0), App.Vector(25.6, -2.5, 0)), False)
sketch8.addGeometry(Part.LineSegment(App.Vector(25.6, -2.5, 0), App.Vector(23.5, -2.9, 0)), False)
sketch8.addGeometry(Part.LineSegment(App.Vector(23.5, -2.9, 0), App.Vector(50.7, -11.9, 0)), False)
sketch8.addGeometry(Part.LineSegment(App.Vector(50.7, -11.9, 0), App.Vector(50.7, 17.1, 0)), False)
sketch8.addGeometry(Part.LineSegment(App.Vector(50.7, 17.1, 0), App.Vector(23.5, 8.1, 0)), False)
sketch8.addConstraint(Sketcher.Constraint("Coincident", 0, 2, 1, 1))
sketch8.addConstraint(Sketcher.Constraint("Coincident", 1, 2, 2, 1))
sketch8.addConstraint(Sketcher.Constraint("Coincident", 2, 2, 3, 1))
sketch8.addConstraint(Sketcher.Constraint("Coincident", 3, 2, 4, 1))
sketch8.addConstraint(Sketcher.Constraint("Coincident", 4, 2, 5, 1))
sketch8.addConstraint(Sketcher.Constraint("Coincident", 5, 2, 6, 1))
sketch8.addConstraint(Sketcher.Constraint("Coincident", 6, 2, 7, 1))
sketch8.addConstraint(Sketcher.Constraint("Coincident", 7, 2, 0, 1))
sketch8.addConstraint(Sketcher.Constraint("Vertical", 2))
sketch8.addConstraint(Sketcher.Constraint("Vertical", 6))
sketch8.addConstraint(Sketcher.Constraint("Parallel", 3, 5))
sketch8.addConstraint(Sketcher.Constraint("Parallel", 1, 7))
sketch8.addConstraint(Sketcher.Constraint("Vertical", 0, 2, 3, 2))
sketch8.addConstraint(Sketcher.Constraint("Vertical", 4, 2, 7, 2))
sketch8.addConstraint(Sketcher.Constraint("Equal", 1, 3))
sketch8.addConstraint(Sketcher.Constraint("Equal", 0, 4))
sketch8.addConstraint(Sketcher.Constraint("DistanceX", 2, 2, 5, 2, Q("1 mm")))
sketch8.addConstraint(Sketcher.Constraint("Distance", 5, Q("28.623799 mm")))
sketch8.addConstraint(Sketcher.Constraint("DistanceY", 2, 2, 2, 1, Q("26.241233 mm")))
sketch8.addConstraint(Sketcher.Constraint("DistanceY", 6, 1, 6, 2, Q("29.011425 mm")))
sketch8.addConstraint(Sketcher.Constraint("DistanceX", -1, 1, 0, 2, Q("25.59965 mm")))
sketch8.addConstraint(Sketcher.Constraint("DistanceY", 0, 2, 1, 2, Q("7.97586 mm")))
sketch8.addConstraint(Sketcher.Constraint("DistanceY", 4, 2, 0, 2, Q("10.64215 mm")))
sketch8.addConstraint(Sketcher.Constraint("DistanceY", -1, 1, 0, 2, Q("7.769757 mm")))
pad4 = doc.addObject("PartDesign::Pad", "Pad003")
body.addObject(pad4)
pad4.Profile = sketch8
pad4.Length = 10

sketch9 = doc.addObject("Sketcher::SketchObject", "Sketch008")
body.addObject(sketch9)
sketch9.AttachmentSupport = (doc.XY_Plane, [""])
sketch9.MapMode = "FlatFace"
sketch9.addGeometry(Part.LineSegment(App.Vector(23.5, 8.1, 0), App.Vector(25.6, 7.8, 0)), False)
sketch9.addGeometry(Part.LineSegment(App.Vector(25.6, 7.8, 0), App.Vector(49.7, 15.7, 0)), False)
sketch9.addGeometry(Part.LineSegment(App.Vector(49.7, 15.7, 0), App.Vector(49.7, 5.6, 0)), False)
sketch9.addGeometry(Part.LineSegment(App.Vector(49.7, 5.6, 0), App.Vector(50.7, 5.6, 0)), False)
sketch9.addGeometry(Part.LineSegment(App.Vector(50.7, 5.6, 0), App.Vector(50.7, 17.1, 0)), False)
sketch9.addGeometry(Part.LineSegment(App.Vector(50.7, 17.1, 0), App.Vector(23.5, 8.1, 0)), False)
sketch9.addGeometry(Part.LineSegment(App.Vector(50.7, -0.4, 0), App.Vector(49.7, -0.4, 0)), False)
sketch9.addGeometry(Part.LineSegment(App.Vector(49.7, -0.4, 0), App.Vector(49.7, -10.5, 0)), False)
sketch9.addGeometry(Part.LineSegment(App.Vector(49.7, -10.5, 0), App.Vector(25.6, -2.5, 0)), False)
sketch9.addGeometry(Part.LineSegment(App.Vector(25.6, -2.5, 0), App.Vector(23.5, -2.9, 0)), False)
sketch9.addGeometry(Part.LineSegment(App.Vector(23.5, -2.9, 0), App.Vector(50.7, -11.9, 0)), False)
sketch9.addGeometry(Part.LineSegment(App.Vector(50.7, -11.9, 0), App.Vector(50.7, -0.4, 0)), False)
sketch9.addConstraint(Sketcher.Constraint("Coincident", 0, 2, 1, 1))
sketch9.addConstraint(Sketcher.Constraint("Coincident", 1, 2, 2, 1))
sketch9.addConstraint(Sketcher.Constraint("Coincident", 2, 2, 3, 1))
sketch9.addConstraint(Sketcher.Constraint("Coincident", 3, 2, 4, 1))
sketch9.addConstraint(Sketcher.Constraint("Coincident", 4, 2, 5, 1))
sketch9.addConstraint(Sketcher.Constraint("Coincident", 5, 2, 0, 1))
sketch9.addConstraint(Sketcher.Constraint("Coincident", 6, 2, 7, 1))
sketch9.addConstraint(Sketcher.Constraint("Coincident", 7, 2, 8, 1))
sketch9.addConstraint(Sketcher.Constraint("Coincident", 8, 2, 9, 1))
sketch9.addConstraint(Sketcher.Constraint("Coincident", 9, 2, 10, 1))
sketch9.addConstraint(Sketcher.Constraint("Coincident", 10, 2, 11, 1))
sketch9.addConstraint(Sketcher.Constraint("Coincident", 11, 2, 6, 1))
sketch9.addConstraint(Sketcher.Constraint("Vertical", 2))
sketch9.addConstraint(Sketcher.Constraint("Horizontal", 3))
sketch9.addConstraint(Sketcher.Constraint("Vertical", 4))
sketch9.addConstraint(Sketcher.Constraint("Horizontal", 6))
sketch9.addConstraint(Sketcher.Constraint("Vertical", 7))
sketch9.addConstraint(Sketcher.Constraint("Vertical", 11))
sketch9.addConstraint(Sketcher.Constraint("Parallel", 1, 5))
sketch9.addConstraint(Sketcher.Constraint("Parallel", 8, 10))
sketch9.addConstraint(Sketcher.Constraint("Vertical", 2, 2, 6, 2))
sketch9.addConstraint(Sketcher.Constraint("Vertical", 0, 2, 8, 2))
sketch9.addConstraint(Sketcher.Constraint("Vertical", 5, 2, 9, 2))
sketch9.addConstraint(Sketcher.Constraint("Vertical", 4, 2, 10, 2))
sketch9.addConstraint(Sketcher.Constraint("Equal", 2, 7))
sketch9.addConstraint(Sketcher.Constraint("Equal", 4, 11))
sketch9.addConstraint(Sketcher.Constraint("Equal", 1, 8))
sketch9.addConstraint(Sketcher.Constraint("DistanceX", 3, 1, 3, 2, Q("1 mm")))
sketch9.addConstraint(Sketcher.Constraint("DistanceY", 6, 2, 2, 2, Q("6 mm")))
sketch9.addConstraint(Sketcher.Constraint("DistanceY", -1, 1, 2, 2, Q("5.625 mm")))
sketch9.addConstraint(Sketcher.Constraint("Distance", 5, Q("28.623799 mm")))
sketch9.addConstraint(Sketcher.Constraint("DistanceY", 2, 2, 2, 1, Q("10.120617 mm")))
sketch9.addConstraint(Sketcher.Constraint("DistanceY", 4, 1, 4, 2, Q("11.505713 mm")))
sketch9.addConstraint(Sketcher.Constraint("DistanceX", -1, 1, 0, 2, Q("25.59965 mm")))
sketch9.addConstraint(Sketcher.Constraint("DistanceY", 0, 2, 1, 2, Q("7.97586 mm")))
sketch9.addConstraint(Sketcher.Constraint("DistanceY", 5, 2, 4, 2, Q("9.00832 mm")))
pocket5 = doc.addObject("PartDesign::Pocket", "Pocket004")
body.addObject(pocket5)
pocket5.Profile = sketch9
pocket5.Length = 8
pocket5.Reversed = True

sketch10 = doc.addObject("Sketcher::SketchObject", "Sketch009")
body.addObject(sketch10)
sketch10.AttachmentSupport = (doc.YZ_Plane, [""])
sketch10.MapMode = "FlatFace"
sketch10.AttachmentOffset = App.Placement(App.Vector(0, 0, 50.655048), App.Rotation())
sketch10.addGeometry(Part.ArcOfCircle(Part.Circle(App.Vector(2.6, 6, 0), App.Vector(0, 0, 1), 1.3), math.radians(-90), math.radians(0)), False)
sketch10.addGeometry(Part.ArcOfCircle(Part.Circle(App.Vector(2.6, 6, 0), App.Vector(0, 0, 1), 1.3), math.radians(0), math.radians(90)), False)
sketch10.addGeometry(Part.ArcOfCircle(Part.Circle(App.Vector(2.6, 6, 0), App.Vector(0, 0, 1), 1.3), math.radians(90), math.radians(270)), False)
sketch10.addGeometry(Part.ArcOfCircle(Part.Circle(App.Vector(2.6, 2, 0), App.Vector(0, 0, 1), 1.3), math.radians(0), math.radians(90)), False)
sketch10.addGeometry(Part.ArcOfCircle(Part.Circle(App.Vector(2.6, 2, 0), App.Vector(0, 0, 1), 1.3), math.radians(90), math.radians(270)), False)
sketch10.addGeometry(Part.ArcOfCircle(Part.Circle(App.Vector(2.6, 2, 0), App.Vector(0, 0, 1), 1.3), math.radians(-90), math.radians(0)), False)
sketch10.addConstraint(Sketcher.Constraint("Tangent", 0, 2, 1, 1))
sketch10.addConstraint(Sketcher.Constraint("Tangent", 1, 2, 2, 1))
sketch10.addConstraint(Sketcher.Constraint("Tangent", 2, 2, 0, 1))
sketch10.addConstraint(Sketcher.Constraint("Tangent", 3, 2, 4, 1))
sketch10.addConstraint(Sketcher.Constraint("Tangent", 4, 2, 5, 1))
sketch10.addConstraint(Sketcher.Constraint("Tangent", 5, 2, 3, 1))
sketch10.addConstraint(Sketcher.Constraint("Equal", 2, 3))
sketch10.addConstraint(Sketcher.Constraint("Horizontal", 2, 3, 0, 2))
sketch10.addConstraint(Sketcher.Constraint("Horizontal", 4, 3, 5, 2))
sketch10.addConstraint(Sketcher.Constraint("Vertical", 2, 3, 3, 3))
sketch10.addConstraint(Sketcher.Constraint("Vertical", 5, 3, 1, 2))
sketch10.addConstraint(Sketcher.Constraint("Vertical", 1, 2, 2, 2))
sketch10.addConstraint(Sketcher.Constraint("Vertical", 2, 2, 3, 2))
sketch10.addConstraint(Sketcher.Constraint("Vertical", 3, 2, 4, 2))
sketch10.addConstraint(Sketcher.Constraint("Radius", 0, Q("1.3 mm")))
sketch10.addConstraint(Sketcher.Constraint("DistanceY", -1, 1, 0, 3, Q("6 mm")))
sketch10.addConstraint(Sketcher.Constraint("DistanceY", -1, 1, 3, 3, Q("2 mm")))
sketch10.addConstraint(Sketcher.Constraint("DistanceX", -1, 1, 0, 3, Q("2.625 mm")))
pocket6 = doc.addObject("PartDesign::Pocket", "Pocket005")
body.addObject(pocket6)
pocket6.Profile = sketch10
pocket6.Length = 1

doc.recompute()
